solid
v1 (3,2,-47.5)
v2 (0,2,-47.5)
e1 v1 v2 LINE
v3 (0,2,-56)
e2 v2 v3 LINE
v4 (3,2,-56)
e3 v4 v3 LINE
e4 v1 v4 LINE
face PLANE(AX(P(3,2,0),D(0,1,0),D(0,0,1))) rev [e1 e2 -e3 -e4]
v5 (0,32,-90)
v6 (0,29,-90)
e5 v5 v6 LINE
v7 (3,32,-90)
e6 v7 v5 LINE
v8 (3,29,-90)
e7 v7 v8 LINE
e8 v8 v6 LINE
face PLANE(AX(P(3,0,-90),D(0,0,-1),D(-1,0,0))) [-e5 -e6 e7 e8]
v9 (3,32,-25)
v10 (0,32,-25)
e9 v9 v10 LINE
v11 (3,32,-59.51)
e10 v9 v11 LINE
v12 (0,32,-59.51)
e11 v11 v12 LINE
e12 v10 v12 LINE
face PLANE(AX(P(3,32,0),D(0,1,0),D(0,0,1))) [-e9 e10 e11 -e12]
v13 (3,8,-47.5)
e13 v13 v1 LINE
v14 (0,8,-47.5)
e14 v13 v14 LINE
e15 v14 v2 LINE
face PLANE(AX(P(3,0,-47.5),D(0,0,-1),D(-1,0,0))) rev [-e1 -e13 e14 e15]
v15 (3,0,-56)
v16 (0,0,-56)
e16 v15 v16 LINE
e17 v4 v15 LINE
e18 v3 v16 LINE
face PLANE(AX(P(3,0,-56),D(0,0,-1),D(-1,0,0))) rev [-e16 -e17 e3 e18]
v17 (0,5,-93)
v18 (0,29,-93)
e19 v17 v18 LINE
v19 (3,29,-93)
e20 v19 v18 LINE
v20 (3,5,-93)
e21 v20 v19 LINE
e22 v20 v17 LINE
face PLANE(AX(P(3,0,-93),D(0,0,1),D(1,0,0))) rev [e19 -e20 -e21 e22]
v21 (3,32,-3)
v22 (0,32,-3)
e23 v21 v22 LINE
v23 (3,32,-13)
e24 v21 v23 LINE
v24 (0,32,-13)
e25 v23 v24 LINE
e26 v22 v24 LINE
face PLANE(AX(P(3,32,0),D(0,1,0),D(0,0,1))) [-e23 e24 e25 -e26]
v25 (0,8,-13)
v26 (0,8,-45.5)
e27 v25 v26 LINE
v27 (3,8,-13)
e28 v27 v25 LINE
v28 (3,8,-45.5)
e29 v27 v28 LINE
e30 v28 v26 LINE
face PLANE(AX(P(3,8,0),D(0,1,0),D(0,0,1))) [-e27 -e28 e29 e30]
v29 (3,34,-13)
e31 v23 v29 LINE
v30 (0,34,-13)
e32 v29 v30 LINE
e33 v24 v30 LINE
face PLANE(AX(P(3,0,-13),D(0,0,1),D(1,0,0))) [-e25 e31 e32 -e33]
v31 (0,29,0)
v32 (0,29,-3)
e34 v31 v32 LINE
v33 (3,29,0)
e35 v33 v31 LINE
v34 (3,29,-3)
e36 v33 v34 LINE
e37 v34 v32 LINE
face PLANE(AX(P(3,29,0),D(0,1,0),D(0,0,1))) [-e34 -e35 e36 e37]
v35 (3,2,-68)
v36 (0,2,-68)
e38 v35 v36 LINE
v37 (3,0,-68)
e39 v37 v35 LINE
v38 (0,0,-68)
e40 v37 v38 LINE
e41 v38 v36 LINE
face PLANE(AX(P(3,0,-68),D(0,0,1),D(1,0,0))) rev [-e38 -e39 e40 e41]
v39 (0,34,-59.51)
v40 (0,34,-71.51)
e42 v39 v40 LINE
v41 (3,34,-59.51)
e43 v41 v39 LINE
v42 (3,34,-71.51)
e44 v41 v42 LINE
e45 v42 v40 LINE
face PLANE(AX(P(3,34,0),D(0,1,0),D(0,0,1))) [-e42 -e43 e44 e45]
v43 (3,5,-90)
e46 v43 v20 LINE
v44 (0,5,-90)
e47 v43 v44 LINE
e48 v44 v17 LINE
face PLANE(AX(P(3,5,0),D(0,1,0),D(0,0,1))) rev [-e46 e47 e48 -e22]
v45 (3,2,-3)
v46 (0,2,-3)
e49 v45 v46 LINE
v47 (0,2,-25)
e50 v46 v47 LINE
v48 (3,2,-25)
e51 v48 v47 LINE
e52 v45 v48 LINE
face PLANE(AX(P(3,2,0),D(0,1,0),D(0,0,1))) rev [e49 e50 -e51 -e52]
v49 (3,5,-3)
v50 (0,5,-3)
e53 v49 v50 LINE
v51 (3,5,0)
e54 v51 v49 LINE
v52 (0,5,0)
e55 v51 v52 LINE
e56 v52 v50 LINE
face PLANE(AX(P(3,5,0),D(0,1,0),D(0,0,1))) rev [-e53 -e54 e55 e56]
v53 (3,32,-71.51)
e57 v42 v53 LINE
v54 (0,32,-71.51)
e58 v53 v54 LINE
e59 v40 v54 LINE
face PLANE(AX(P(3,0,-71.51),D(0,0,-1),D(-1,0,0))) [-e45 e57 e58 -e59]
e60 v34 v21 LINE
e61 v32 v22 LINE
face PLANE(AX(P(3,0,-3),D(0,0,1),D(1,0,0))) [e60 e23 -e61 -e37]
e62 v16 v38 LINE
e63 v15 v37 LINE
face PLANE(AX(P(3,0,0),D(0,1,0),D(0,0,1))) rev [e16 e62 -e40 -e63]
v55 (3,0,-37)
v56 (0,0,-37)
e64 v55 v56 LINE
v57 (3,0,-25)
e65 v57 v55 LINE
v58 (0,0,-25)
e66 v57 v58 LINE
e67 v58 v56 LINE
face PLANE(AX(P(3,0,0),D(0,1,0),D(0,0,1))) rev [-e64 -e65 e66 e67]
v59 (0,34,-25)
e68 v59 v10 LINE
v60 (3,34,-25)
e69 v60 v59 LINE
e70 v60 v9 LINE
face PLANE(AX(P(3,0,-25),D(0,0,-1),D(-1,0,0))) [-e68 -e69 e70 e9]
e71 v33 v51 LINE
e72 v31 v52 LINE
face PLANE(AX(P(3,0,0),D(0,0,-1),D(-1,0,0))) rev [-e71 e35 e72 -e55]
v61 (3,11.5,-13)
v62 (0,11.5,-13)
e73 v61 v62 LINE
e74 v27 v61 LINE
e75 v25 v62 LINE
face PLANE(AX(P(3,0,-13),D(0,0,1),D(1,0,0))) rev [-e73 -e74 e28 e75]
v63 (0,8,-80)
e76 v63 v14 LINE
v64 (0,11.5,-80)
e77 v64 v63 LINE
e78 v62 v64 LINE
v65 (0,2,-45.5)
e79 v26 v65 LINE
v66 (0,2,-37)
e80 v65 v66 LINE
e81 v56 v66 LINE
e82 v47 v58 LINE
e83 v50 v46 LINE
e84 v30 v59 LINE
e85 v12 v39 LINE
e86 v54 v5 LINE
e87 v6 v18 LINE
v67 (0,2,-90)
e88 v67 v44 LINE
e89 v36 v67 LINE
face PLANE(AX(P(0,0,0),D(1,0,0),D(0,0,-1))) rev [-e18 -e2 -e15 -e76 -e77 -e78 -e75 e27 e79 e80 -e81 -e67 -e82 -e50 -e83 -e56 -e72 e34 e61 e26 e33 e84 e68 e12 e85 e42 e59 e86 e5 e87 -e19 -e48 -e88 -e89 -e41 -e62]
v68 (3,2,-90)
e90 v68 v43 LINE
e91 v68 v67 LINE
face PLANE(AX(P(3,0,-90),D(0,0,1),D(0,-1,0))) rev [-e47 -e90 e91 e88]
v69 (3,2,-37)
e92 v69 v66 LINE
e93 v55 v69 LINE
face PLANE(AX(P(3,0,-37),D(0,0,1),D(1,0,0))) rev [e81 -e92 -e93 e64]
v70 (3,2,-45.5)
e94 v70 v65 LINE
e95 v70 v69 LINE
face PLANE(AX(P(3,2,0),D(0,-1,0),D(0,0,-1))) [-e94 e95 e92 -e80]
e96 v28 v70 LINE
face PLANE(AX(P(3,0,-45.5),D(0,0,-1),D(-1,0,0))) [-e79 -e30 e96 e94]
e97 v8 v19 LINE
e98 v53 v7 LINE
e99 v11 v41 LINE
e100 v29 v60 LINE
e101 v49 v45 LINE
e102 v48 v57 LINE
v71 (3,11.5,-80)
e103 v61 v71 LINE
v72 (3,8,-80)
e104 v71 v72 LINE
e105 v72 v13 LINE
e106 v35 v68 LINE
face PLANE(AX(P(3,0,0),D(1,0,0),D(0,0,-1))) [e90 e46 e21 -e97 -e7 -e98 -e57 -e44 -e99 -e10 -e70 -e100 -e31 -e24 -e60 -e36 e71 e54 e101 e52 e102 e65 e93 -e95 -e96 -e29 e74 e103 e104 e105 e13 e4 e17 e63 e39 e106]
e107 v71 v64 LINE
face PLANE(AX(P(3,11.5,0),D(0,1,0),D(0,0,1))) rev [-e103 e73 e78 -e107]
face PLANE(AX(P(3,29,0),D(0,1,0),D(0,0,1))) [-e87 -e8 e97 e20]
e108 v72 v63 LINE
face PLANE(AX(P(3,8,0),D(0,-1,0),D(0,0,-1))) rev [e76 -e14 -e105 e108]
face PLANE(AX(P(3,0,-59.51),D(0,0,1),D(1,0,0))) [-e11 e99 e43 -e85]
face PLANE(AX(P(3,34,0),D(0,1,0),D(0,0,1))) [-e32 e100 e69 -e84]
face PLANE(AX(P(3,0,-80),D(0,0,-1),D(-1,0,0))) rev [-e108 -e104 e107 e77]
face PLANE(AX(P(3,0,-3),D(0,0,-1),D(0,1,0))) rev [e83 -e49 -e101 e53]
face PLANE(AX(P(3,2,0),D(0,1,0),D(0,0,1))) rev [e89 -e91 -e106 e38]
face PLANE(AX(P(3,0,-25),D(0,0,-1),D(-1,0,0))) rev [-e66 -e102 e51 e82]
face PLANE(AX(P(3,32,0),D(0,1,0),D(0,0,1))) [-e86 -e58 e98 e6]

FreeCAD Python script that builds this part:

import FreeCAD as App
import Part
import Sketcher
Q = App.Units.Quantity


def add_polygon(sketch, points):
    """Adds a closed chain of lines whose ends are joined by coincident constraints."""
    first, n = sketch.GeometryCount, len(points)
    for a, b in zip(points, points[1:] + points[:1]):
        sketch.addGeometry(Part.LineSegment(App.Vector(*a, 0), App.Vector(*b, 0)), False)
    for i in range(n):
        sketch.addConstraint(Sketcher.Constraint("Coincident", first + i, 2, first + (i + 1) % n, 1))

doc = App.newDocument("Part")
body = doc.addObject("PartDesign::Body", "Body")

# Sketch on YZ plane
sketch1 = body.newObject("Sketcher::SketchObject", "Sketch")
sketch1.AttachmentSupport = (doc.getObject("YZ_Plane"), [""])
sketch1.MapMode = "FlatFace"
add_polygon(sketch1, [(2, -25), (0, -25), (0, -37), (2, -37), (2, -45.5), (8, -45.5), (8, -13), (11.5, -13), (11.5, -80), (8, -80), (8, -47.5), (2, -47.5), (2, -56), (0, -56), (0, -68), (2, -68), (2, -90), (5, -90), (5, -93), (29, -93), (29, -90), (32, -90), (32, -71.5), (34, -71.5), (34, -59.5), (32, -59.5), (32, -25), (34, -25), (34, -13), (32, -13), (32, -3), (29, -3), (29, 0), (5, 0), (5, -3), (2, -3)])  # lines 0-35
sketch1.addConstraint([
    Sketcher.Constraint("Horizontal", 0),
    Sketcher.Constraint("Vertical", 1),
    Sketcher.Constraint("Horizontal", 2),
    Sketcher.Constraint("Vertical", 3),
    Sketcher.Constraint("Horizontal", 4),
    Sketcher.Constraint("Vertical", 5),
    Sketcher.Constraint("Horizontal", 6),
    Sketcher.Constraint("Vertical", 7),
    Sketcher.Constraint("Horizontal", 8),
    Sketcher.Constraint("Vertical", 9),
    Sketcher.Constraint("Horizontal", 10),
    Sketcher.Constraint("Vertical", 11),
    Sketcher.Constraint("Horizontal", 12),
    Sketcher.Constraint("Vertical", 13),
    Sketcher.Constraint("Horizontal", 14),
    Sketcher.Constraint("Vertical", 15),
    Sketcher.Constraint("Horizontal", 16),
    Sketcher.Constraint("Vertical", 17),
    Sketcher.Constraint("Horizontal", 18),
    Sketcher.Constraint("Vertical", 19),
    Sketcher.Constraint("Horizontal", 20),
    Sketcher.Constraint("Vertical", 21),
    Sketcher.Constraint("Horizontal", 22),
    Sketcher.Constraint("Vertical", 23),
    Sketcher.Constraint("Horizontal", 24),
    Sketcher.Constraint("Vertical", 25),
    Sketcher.Constraint("Horizontal", 26),
    Sketcher.Constraint("Vertical", 27),
    Sketcher.Constraint("Horizontal", 28),
    Sketcher.Constraint("Vertical", 29),
    Sketcher.Constraint("Horizontal", 30),
    Sketcher.Constraint("Vertical", 31),
    Sketcher.Constraint("Horizontal", 32),
    Sketcher.Constraint("Vertical", 33),
    Sketcher.Constraint("Horizontal", 34),
    Sketcher.Constraint("Vertical", 35),
    Sketcher.Constraint("PointOnObject", 0, 2, -2),
    Sketcher.Constraint("PointOnObject", 12, 2, -2),
    Sketcher.Constraint("PointOnObject", 31, 2, -1),
    Sketcher.Constraint("Horizontal", 16, 2, 19, 2),
    Sketcher.Constraint("Horizontal", 0, 2, 25, 2),
    Sketcher.Constraint("Horizontal", 6, 2, 27, 2),
    Sketcher.Constraint("Horizontal", 30, 2, 33, 2),
    Sketcher.Constraint("Vertical", 5, 2, 8, 2),
    Sketcher.Constraint("Vertical", 3, 2, 10, 2),
    Sketcher.Constraint("Vertical", 11, 2, 14, 2),
    Sketcher.Constraint("Vertical", 21, 2, 24, 2),
    Sketcher.Constraint("Vertical", 23, 2, 26, 2),
    Sketcher.Constraint("Vertical", 25, 2, 28, 2),
    Sketcher.Constraint("Vertical", 19, 2, 30, 2),
    Sketcher.Constraint("Vertical", 17, 2, 32, 2),
    Sketcher.Constraint("Vertical", 15, 2, 34, 2),
    Sketcher.Constraint("Equal", 16, 20),
    Sketcher.Constraint("Equal", 14, 22),
    Sketcher.Constraint("Equal", 5, 9),
    Sketcher.Constraint("Equal", 3, 11),
    Sketcher.Constraint("Equal", 1, 13),
    Sketcher.Constraint("Equal", 34, 17),
    Sketcher.Constraint("Equal", 13, 23),
    Sketcher.Constraint("Equal", 23, 27),
    Sketcher.Constraint("Equal", 19, 31),
    Sketcher.Constraint("Equal", 15, 35),
    Sketcher.Constraint("DistanceX", 0, 2, 0, 1, Q("2 mm")),
    Sketcher.Constraint("DistanceX", 4, 1, 4, 2, Q("6 mm")),
    Sketcher.Constraint("DistanceX", 16, 1, 16, 2, Q("3 mm")),
    Sketcher.Constraint("DistanceX", 18, 1, 18, 2, Q("24 mm")),
    Sketcher.Constraint("DistanceY", 1, 2, 1, 1, Q("12 mm")),
    Sketcher.Constraint("DistanceY", 7, 2, 7, 1, Q("67 mm")),
    Sketcher.Constraint("DistanceY", 15, 2, 15, 1, Q("22 mm")),
    Sketcher.Constraint("DistanceX", 6, 1, 6, 2, Q("3.5 mm")),
    Sketcher.Constraint("DistanceY", 3, 2, 3, 1, Q("8.5 mm")),
    Sketcher.Constraint("DistanceY", 21, 1, 21, 2, Q("18.49 mm")),
])
pad1 = body.newObject("PartDesign::Pad", "Pad")
pad1.Profile = sketch1
pad1.Length = 3

doc.recompute()
